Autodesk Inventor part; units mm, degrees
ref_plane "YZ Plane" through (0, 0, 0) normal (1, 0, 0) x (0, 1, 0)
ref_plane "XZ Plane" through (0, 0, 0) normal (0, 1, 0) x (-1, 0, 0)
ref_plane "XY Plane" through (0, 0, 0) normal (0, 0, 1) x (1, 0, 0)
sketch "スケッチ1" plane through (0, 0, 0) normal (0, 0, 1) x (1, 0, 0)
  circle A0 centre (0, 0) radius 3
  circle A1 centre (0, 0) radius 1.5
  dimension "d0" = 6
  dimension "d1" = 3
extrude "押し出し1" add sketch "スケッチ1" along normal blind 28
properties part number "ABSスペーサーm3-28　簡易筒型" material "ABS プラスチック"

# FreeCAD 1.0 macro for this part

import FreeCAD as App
import Part
import Sketcher

V = App.Vector
Q = App.Units.Quantity

doc = App.newDocument("Part")
params = doc.addObject("Spreadsheet::Sheet", "Params")
for row, (alias, value) in enumerate([
    ("sketch1_diameter", "6 mm"),
    ("sketch1_diameter2", "3 mm"),
    ("pad1_length", "28 mm"),
], start=1):
    params.set(f"A{row}", alias)
    params.set(f"B{row}", "=" + value)
    params.setAlias(f"B{row}", alias)

body = doc.addObject("PartDesign::Body", "Body")

sketch1 = body.newObject("Sketcher::SketchObject", "Sketch")
sketch1.AttachmentSupport = (doc.getObject("XY_Plane"), [""])
sketch1.MapMode = "FlatFace"
sketch1.addGeometry([
    Part.Circle(V(0, 0, 0), V(0, 0, 1), 3),
    Part.Circle(V(0, 0, 0), V(0, 0, 1), 1.5),
], False)
sketch1.addConstraint([
    Sketcher.Constraint("Coincident", 0, 3, -1, 1),
    Sketcher.Constraint("Coincident", 1, 3, -1, 1),
    Sketcher.Constraint("Diameter", 0, Q("6 mm")),
    Sketcher.Constraint("Diameter", 1, Q("3 mm")),
])
sketch1.setExpression("Constraints[2]", "Params.sketch1_diameter")
sketch1.setExpression("Constraints[3]", "Params.sketch1_diameter2")
pad1 = body.newObject("PartDesign::Pad", "Pad")
pad1.Profile = sketch1
pad1.setExpression("Length", "Params.pad1_length")

doc.recompute()
